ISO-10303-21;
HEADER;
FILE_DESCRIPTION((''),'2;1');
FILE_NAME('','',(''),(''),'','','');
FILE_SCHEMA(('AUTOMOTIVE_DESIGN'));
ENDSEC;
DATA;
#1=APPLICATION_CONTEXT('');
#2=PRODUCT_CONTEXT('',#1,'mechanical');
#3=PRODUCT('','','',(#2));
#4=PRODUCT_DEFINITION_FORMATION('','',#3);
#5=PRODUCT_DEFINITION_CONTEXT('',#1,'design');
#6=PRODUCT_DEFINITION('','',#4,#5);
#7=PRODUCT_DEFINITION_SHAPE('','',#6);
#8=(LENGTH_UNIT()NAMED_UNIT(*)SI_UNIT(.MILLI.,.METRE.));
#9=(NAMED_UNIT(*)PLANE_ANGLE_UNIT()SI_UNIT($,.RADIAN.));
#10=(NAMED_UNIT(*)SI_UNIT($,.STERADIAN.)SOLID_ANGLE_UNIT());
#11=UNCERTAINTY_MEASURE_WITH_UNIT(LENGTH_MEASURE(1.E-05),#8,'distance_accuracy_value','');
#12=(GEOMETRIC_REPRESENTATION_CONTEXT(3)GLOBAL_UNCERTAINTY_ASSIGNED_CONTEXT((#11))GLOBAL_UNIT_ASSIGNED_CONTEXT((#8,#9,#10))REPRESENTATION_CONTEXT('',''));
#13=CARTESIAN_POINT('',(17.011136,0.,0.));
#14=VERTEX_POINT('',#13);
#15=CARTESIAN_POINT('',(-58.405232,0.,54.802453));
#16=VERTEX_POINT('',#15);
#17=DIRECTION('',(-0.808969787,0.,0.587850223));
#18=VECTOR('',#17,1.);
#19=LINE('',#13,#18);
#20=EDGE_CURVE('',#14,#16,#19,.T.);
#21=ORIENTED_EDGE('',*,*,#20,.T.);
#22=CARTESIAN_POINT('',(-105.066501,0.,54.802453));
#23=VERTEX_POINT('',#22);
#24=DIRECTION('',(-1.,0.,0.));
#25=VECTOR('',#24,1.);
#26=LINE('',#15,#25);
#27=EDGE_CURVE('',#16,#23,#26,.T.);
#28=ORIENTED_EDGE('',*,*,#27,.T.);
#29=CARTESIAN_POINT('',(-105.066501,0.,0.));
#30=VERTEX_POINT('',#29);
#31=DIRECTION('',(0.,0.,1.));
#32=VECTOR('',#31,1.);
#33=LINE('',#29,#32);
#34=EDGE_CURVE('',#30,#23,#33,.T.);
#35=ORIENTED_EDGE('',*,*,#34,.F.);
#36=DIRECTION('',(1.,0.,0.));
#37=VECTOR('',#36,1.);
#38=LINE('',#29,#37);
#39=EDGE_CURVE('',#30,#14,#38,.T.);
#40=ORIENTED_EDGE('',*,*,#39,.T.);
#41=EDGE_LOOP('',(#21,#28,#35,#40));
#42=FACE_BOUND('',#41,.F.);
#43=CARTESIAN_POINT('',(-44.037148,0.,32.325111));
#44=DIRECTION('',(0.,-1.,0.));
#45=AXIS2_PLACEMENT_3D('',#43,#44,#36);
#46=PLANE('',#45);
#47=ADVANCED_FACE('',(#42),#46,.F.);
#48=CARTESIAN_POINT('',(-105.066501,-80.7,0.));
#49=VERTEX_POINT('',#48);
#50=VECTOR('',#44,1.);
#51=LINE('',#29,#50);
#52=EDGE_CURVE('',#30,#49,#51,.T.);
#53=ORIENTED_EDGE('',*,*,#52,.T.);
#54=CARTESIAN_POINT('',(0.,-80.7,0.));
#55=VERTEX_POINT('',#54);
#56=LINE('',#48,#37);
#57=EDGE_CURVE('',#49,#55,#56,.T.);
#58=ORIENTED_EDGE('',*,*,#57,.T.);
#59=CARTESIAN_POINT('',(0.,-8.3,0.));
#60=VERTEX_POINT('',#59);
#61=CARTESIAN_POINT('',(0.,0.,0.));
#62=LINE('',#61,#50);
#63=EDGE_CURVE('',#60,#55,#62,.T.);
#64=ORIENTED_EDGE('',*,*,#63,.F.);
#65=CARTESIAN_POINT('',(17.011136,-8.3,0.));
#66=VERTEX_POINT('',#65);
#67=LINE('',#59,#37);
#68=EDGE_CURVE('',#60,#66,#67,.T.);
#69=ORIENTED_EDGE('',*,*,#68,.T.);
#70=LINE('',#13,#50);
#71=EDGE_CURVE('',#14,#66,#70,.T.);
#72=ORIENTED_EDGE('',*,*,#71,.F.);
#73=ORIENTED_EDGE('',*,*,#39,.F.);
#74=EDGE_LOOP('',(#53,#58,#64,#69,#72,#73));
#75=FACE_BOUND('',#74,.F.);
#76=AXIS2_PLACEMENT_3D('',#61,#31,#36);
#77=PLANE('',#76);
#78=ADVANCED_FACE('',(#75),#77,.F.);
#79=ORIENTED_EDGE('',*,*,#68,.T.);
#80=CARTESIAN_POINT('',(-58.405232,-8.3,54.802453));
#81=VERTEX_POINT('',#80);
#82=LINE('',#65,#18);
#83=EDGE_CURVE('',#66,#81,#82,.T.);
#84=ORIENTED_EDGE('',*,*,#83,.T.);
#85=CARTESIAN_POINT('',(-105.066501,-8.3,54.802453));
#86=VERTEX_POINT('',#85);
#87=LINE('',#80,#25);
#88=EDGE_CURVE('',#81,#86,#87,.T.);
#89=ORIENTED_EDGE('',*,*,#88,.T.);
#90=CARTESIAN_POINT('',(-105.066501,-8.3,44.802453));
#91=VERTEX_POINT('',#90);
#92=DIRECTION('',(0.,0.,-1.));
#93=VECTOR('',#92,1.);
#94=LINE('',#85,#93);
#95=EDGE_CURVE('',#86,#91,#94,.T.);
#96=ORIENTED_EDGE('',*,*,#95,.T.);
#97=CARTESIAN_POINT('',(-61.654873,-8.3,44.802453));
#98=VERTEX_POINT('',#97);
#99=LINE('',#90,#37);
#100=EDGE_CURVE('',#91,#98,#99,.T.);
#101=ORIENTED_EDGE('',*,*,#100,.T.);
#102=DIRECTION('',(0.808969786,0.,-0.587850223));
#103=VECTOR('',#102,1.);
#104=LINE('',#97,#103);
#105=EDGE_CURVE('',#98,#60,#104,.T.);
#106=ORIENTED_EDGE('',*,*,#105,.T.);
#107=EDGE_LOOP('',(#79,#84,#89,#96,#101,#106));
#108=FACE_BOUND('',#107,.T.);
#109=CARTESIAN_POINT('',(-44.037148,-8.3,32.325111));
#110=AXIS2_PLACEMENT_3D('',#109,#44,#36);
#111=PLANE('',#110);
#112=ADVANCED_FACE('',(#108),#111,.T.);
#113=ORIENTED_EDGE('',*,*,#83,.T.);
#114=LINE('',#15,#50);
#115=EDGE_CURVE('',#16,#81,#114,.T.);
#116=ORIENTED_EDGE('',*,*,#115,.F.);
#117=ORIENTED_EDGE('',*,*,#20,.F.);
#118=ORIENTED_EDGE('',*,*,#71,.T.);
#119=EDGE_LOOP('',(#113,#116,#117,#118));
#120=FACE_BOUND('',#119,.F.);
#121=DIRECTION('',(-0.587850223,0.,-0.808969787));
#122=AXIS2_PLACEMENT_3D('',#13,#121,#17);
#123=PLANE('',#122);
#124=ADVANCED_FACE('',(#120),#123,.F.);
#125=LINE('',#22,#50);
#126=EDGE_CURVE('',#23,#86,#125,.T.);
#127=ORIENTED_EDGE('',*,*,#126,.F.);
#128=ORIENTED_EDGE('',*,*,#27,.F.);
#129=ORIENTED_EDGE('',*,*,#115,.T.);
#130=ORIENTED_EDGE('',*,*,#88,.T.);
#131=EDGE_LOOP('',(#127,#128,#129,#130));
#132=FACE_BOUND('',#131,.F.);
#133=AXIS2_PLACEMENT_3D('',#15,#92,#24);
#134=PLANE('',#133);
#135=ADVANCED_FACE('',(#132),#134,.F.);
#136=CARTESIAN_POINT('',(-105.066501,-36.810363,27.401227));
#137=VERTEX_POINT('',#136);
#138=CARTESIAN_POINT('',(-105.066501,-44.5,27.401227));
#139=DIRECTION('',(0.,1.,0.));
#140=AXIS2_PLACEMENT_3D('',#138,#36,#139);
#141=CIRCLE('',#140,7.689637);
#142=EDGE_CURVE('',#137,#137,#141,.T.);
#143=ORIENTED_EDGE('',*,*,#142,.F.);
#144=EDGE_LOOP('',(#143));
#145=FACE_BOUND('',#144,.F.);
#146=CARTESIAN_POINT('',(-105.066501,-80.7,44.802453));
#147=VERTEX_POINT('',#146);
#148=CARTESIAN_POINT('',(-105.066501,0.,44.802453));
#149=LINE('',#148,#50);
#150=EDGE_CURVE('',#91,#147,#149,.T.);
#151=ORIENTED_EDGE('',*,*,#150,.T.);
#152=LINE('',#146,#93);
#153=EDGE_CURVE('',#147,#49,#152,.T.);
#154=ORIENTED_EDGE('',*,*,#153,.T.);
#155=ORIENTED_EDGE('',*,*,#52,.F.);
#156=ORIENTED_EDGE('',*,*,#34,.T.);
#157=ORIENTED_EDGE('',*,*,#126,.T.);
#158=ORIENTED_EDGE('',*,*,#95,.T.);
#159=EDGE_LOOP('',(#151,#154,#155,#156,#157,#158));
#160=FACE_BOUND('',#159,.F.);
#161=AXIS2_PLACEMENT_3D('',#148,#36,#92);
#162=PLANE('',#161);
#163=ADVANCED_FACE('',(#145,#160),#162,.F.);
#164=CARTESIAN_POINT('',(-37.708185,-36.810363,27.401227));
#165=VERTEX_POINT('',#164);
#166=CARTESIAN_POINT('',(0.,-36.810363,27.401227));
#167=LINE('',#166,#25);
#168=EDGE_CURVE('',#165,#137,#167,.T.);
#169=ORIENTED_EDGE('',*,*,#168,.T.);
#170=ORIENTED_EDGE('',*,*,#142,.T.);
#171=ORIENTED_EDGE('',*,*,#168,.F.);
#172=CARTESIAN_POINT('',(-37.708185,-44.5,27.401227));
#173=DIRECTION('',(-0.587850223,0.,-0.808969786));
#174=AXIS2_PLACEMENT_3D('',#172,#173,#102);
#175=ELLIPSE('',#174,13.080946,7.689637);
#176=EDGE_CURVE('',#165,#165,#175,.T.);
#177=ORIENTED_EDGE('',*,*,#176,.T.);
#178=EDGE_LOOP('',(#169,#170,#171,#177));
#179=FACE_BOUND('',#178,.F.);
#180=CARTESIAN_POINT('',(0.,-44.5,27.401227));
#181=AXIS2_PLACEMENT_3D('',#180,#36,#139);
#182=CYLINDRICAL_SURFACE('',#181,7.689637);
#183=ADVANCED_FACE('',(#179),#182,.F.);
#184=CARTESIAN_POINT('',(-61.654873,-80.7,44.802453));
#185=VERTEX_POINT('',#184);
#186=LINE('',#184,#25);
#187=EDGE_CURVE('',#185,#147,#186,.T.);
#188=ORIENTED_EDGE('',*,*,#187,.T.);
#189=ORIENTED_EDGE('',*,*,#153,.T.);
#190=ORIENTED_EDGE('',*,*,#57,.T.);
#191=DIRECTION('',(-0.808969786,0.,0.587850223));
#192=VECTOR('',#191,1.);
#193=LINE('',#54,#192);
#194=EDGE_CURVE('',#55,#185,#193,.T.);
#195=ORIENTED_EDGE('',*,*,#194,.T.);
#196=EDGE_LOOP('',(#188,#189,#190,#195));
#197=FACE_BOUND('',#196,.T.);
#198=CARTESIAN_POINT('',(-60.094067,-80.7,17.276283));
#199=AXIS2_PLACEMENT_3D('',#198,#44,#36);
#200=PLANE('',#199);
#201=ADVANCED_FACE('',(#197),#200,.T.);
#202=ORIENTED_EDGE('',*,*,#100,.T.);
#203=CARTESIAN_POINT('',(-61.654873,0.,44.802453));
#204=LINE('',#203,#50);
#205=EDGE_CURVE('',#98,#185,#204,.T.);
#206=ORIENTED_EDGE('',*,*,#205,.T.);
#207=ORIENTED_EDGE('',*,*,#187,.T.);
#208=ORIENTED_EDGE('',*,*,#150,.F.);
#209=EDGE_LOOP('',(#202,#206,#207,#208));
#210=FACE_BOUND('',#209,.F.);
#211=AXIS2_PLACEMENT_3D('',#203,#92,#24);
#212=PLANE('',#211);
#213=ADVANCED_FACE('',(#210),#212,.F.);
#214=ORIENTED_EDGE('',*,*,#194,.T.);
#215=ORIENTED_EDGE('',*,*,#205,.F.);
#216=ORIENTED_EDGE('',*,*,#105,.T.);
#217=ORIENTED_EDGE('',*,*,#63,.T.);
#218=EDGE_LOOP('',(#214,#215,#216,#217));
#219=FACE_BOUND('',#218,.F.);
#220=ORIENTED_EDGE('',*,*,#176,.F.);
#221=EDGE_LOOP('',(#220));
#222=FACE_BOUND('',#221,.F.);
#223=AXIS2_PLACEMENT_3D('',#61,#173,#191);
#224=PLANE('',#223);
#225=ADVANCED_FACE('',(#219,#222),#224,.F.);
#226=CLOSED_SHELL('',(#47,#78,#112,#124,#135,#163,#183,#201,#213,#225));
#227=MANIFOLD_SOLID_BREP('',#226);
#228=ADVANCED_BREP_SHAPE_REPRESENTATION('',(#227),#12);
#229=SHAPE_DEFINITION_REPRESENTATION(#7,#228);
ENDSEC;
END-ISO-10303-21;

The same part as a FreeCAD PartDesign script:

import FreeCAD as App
import Part
import Sketcher
from FreeCAD import Vector

doc = App.newDocument("Part")
body = doc.addObject("PartDesign::Body", "Body")

sketch1 = body.newObject("Sketcher::SketchObject", "Sketch")
sketch1.AttachmentSupport = (doc.getObject("XZ_Plane"), [""])
sketch1.MapMode = "FlatFace"
sketch1.addGeometry(Part.LineSegment(Vector(-105.066501, 0, 0), Vector(0, 0, 0)), False)
sketch1.addGeometry(Part.LineSegment(Vector(0, 0, 0), Vector(-61.654873, 44.802453, 0)), False)
sketch1.addGeometry(Part.LineSegment(Vector(-61.654873, 44.802453, 0), Vector(-105.066501, 44.802453, 0)), False)
sketch1.addGeometry(Part.LineSegment(Vector(-105.066501, 44.802453, 0), Vector(-105.066501, 0, 0)), False)
sketch1.addConstraint(Sketcher.Constraint("Coincident", 0, 2, 1, 1))
sketch1.addConstraint(Sketcher.Constraint("Coincident", 1, 2, 2, 1))
sketch1.addConstraint(Sketcher.Constraint("Coincident", 2, 2, 3, 1))
sketch1.addConstraint(Sketcher.Constraint("Coincident", 3, 2, 0, 1))
sketch1.addConstraint(Sketcher.Constraint("Horizontal", 0))
sketch1.addConstraint(Sketcher.Constraint("Horizontal", 2))
sketch1.addConstraint(Sketcher.Constraint("Vertical", 3))
sketch1.addConstraint(Sketcher.Constraint("Coincident", 0, 2, -1, 1))
sketch1.addConstraint(Sketcher.Constraint("DistanceX", 0, 1, 0, 2, 105.066501))
sketch1.addConstraint(Sketcher.Constraint("Distance", 1, 76.214061))
sketch1.addConstraint(Sketcher.Constraint("DistanceX", 2, 2, 2, 1, 43.411628))
pad1 = body.newObject("PartDesign::Pad", "Pad")
pad1.Profile = sketch1
pad1.Length = 80.7

sketch2 = body.newObject("Sketcher::SketchObject", "Sketch001")
sketch2.AttachmentSupport = (doc.getObject("XZ_Plane"), [""])
sketch2.MapMode = "FlatFace"
sketch2.addGeometry(Part.LineSegment(Vector(-61.654873, 44.802453, 0), Vector(0, 0, 0)), False)
sketch2.addGeometry(Part.LineSegment(Vector(0, 0, 0), Vector(17.011136, 0, 0)), False)
sketch2.addGeometry(Part.LineSegment(Vector(17.011136, 0, 0), Vector(-58.405232, 54.802453, 0)), False)
sketch2.addGeometry(Part.LineSegment(Vector(-58.405232, 54.802453, 0), Vector(-105.066501, 54.802453, 0)), False)
sketch2.addGeometry(Part.LineSegment(Vector(-105.066501, 54.802453, 0), Vector(-105.066501, 44.802453, 0)), False)
sketch2.addGeometry(Part.LineSegment(Vector(-105.066501, 44.802453, 0), Vector(-61.654873, 44.802453, 0)), False)
sketch2.addConstraint(Sketcher.Constraint("Coincident", 0, 2, 1, 1))
sketch2.addConstraint(Sketcher.Constraint("Coincident", 1, 2, 2, 1))
sketch2.addConstraint(Sketcher.Constraint("Coincident", 2, 2, 3, 1))
sketch2.addConstraint(Sketcher.Constraint("Coincident", 3, 2, 4, 1))
sketch2.addConstraint(Sketcher.Constraint("Coincident", 4, 2, 5, 1))
sketch2.addConstraint(Sketcher.Constraint("Coincident", 5, 2, 0, 1))
sketch2.addConstraint(Sketcher.Constraint("Horizontal", 1))
sketch2.addConstraint(Sketcher.Constraint("Horizontal", 3))
sketch2.addConstraint(Sketcher.Constraint("Vertical", 4))
sketch2.addConstraint(Sketcher.Constraint("Horizontal", 5))
sketch2.addConstraint(Sketcher.Constraint("Coincident", 0, 2, -1, 1))
sketch2.addConstraint(Sketcher.Constraint("Parallel", 0, 2))
sketch2.addConstraint(Sketcher.Constraint("DistanceY", 4, 2, 4, 1, 10.0))
sketch2.addConstraint(Sketcher.Constraint("DistanceX", 3, 2, 3, 1, 46.661269))
sketch2.addConstraint(Sketcher.Constraint("DistanceX", 3, 2, -1, 1, 105.066501))
sketch2.addConstraint(Sketcher.Constraint("Distance", 0, 76.214061))
sketch2.addConstraint(Sketcher.Constraint("DistanceX", 1, 1, 1, 2, 17.011136))
pad2 = body.newObject("PartDesign::Pad", "Pad001")
pad2.Profile = sketch2
pad2.Length = 8.3

sketch3 = body.newObject("Sketcher::SketchObject", "Sketch002")
sketch3.AttachmentSupport = (doc.getObject("YZ_Plane"), [""])
sketch3.MapMode = "FlatFace"
sketch3.addGeometry(Part.Circle(Vector(-44.5, 27.401227, 0), Vector(0, 0, 1), 7.689637), False)
sketch3.addConstraint(Sketcher.Constraint("DistanceX", 0, 3, -1, 1, 44.5))
sketch3.addConstraint(Sketcher.Constraint("Diameter", 0, 15.379274))
sketch3.addConstraint(Sketcher.Constraint("DistanceY", -1, 1, 0, 3, 27.401227))
pocket1 = body.newObject("PartDesign::Pocket", "Pocket")
pocket1.Profile = sketch3
pocket1.Type = "ThroughAll"

doc.recompute()
